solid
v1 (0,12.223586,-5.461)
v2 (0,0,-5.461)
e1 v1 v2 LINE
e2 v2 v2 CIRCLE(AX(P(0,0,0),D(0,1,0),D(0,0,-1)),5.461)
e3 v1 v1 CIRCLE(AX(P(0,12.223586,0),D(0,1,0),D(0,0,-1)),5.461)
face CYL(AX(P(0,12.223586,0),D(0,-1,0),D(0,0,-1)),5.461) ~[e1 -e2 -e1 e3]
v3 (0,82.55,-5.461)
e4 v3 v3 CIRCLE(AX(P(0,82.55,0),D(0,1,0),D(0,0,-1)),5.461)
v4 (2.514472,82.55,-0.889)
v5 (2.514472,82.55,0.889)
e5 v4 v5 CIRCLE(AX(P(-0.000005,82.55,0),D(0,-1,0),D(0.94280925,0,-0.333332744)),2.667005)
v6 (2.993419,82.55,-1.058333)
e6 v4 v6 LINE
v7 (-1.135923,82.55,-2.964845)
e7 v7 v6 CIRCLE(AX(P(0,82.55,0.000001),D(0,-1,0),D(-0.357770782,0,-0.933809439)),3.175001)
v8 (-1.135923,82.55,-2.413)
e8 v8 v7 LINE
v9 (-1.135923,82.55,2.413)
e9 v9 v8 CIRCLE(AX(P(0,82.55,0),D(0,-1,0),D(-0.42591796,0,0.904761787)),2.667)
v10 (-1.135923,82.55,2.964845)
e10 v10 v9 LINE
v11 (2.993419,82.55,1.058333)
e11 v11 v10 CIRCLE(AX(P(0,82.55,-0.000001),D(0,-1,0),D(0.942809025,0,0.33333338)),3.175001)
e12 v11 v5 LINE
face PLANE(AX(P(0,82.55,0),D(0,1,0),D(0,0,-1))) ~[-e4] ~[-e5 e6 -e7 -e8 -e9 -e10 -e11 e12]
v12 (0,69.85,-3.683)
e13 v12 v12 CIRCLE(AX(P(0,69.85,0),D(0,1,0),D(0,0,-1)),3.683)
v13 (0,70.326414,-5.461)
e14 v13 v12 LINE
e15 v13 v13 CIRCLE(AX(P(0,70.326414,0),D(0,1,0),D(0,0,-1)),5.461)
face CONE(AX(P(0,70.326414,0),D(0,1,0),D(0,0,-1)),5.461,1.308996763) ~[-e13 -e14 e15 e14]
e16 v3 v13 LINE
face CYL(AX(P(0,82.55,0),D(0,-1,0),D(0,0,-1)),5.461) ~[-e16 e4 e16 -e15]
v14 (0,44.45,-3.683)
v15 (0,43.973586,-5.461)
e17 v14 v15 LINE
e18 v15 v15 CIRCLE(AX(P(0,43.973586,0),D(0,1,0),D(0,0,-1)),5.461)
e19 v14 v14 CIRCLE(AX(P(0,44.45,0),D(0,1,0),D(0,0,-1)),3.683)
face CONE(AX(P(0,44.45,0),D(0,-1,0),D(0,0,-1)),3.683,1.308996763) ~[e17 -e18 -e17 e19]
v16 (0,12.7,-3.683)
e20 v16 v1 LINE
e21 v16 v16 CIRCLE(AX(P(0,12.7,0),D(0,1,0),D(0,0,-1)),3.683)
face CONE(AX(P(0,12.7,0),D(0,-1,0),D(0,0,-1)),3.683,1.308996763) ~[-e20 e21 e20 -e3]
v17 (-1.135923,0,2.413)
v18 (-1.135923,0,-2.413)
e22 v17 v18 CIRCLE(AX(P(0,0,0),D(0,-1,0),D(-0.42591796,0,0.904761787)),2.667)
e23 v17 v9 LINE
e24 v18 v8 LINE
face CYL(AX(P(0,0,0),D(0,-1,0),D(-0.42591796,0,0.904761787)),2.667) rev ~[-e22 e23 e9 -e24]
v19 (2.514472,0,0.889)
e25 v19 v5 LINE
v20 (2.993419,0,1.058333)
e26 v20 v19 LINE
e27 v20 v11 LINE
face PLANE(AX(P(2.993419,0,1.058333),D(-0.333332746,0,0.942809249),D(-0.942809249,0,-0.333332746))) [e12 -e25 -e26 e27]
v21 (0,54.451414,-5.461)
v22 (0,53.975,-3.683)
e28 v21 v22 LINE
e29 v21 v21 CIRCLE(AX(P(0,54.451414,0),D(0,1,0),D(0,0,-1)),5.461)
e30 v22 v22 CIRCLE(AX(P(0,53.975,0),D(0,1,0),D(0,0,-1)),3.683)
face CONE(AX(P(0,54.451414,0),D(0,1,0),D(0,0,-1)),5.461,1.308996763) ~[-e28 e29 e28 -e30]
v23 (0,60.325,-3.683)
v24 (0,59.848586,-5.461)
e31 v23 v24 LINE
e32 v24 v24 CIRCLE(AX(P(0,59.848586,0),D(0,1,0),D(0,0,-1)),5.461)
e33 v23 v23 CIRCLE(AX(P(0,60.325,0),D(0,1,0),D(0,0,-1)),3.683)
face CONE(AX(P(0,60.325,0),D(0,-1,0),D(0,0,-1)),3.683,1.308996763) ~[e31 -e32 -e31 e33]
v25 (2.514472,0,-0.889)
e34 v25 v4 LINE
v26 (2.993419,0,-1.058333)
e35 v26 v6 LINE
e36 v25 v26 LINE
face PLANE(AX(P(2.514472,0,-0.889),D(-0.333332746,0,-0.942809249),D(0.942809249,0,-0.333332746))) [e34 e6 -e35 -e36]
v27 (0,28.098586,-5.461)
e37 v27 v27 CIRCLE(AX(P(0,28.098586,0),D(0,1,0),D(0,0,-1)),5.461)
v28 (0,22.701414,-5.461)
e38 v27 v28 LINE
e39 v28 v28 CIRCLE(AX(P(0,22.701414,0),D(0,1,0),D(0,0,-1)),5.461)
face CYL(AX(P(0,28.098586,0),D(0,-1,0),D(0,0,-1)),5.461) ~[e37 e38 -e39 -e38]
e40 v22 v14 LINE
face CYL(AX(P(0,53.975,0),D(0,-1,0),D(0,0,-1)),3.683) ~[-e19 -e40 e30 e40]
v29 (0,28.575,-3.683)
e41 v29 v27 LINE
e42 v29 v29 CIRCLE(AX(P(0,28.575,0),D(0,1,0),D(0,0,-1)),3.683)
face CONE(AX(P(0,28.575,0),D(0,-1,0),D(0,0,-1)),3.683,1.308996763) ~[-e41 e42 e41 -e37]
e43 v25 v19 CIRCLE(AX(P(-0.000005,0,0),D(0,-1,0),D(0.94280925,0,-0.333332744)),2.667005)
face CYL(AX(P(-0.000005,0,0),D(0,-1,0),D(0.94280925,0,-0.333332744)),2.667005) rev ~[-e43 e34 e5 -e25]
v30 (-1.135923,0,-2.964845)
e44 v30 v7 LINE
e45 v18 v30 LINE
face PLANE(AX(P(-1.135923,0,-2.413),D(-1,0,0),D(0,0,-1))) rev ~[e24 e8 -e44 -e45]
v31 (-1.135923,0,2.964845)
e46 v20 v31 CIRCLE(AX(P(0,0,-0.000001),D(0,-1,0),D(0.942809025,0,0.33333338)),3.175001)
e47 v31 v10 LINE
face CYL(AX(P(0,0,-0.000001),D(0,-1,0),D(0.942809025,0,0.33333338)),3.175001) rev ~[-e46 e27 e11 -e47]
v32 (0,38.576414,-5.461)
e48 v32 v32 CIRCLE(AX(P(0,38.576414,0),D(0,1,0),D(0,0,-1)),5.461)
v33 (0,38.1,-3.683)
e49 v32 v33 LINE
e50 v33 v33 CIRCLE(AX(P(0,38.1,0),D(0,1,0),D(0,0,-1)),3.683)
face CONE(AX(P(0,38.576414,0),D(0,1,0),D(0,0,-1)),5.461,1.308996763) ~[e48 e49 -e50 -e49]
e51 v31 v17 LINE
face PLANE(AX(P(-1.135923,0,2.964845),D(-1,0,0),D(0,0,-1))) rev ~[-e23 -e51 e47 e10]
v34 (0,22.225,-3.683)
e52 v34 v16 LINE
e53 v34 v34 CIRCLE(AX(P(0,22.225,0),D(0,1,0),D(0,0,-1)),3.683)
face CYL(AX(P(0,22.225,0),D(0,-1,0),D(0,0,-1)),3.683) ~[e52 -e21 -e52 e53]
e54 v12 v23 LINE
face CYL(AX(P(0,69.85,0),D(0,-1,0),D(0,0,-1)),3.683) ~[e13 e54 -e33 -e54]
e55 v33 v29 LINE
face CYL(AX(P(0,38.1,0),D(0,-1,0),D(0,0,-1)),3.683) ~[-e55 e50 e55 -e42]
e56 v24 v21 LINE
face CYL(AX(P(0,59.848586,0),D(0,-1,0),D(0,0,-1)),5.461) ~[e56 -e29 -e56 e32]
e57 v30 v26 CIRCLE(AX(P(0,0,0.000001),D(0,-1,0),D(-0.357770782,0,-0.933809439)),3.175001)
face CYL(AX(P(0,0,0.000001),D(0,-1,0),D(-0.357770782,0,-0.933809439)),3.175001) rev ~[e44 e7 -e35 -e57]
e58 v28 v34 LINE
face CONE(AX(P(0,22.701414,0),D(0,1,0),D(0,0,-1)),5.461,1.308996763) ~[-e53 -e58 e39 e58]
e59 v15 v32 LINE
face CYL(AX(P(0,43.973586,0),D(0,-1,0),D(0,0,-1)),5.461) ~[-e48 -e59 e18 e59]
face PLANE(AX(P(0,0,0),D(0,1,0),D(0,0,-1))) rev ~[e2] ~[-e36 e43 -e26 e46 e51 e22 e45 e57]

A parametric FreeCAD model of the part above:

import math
import FreeCAD as App
import Part
import Sketcher

V = App.Vector
Q = App.Units.Quantity

doc = App.newDocument("Part")
body = doc.addObject("PartDesign::Body", "Body")

# Sketch on YZ plane
sketch1 = body.newObject("Sketcher::SketchObject", "Sketch")
sketch1.AttachmentSupport = (doc.getObject("YZ_Plane"), [""])
sketch1.MapMode = "FlatFace"
sketch1.addGeometry(Part.LineSegment(V(82.5, 0, 0), V(0, 0, 0)), False)
sketch1.addGeometry(Part.LineSegment(V(0, 0, 0), V(0, -5.5, 0)), False)
sketch1.addGeometry(Part.LineSegment(V(0, -5.5, 0), V(12.2, -5.5, 0)), False)
sketch1.addGeometry(Part.LineSegment(V(12.2, -5.5, 0), V(12.7, -3.7, 0)), False)
sketch1.addGeometry(Part.LineSegment(V(12.7, -3.7, 0), V(22.2, -3.7, 0)), False)
sketch1.addGeometry(Part.LineSegment(V(22.2, -3.7, 0), V(22.7, -5.5, 0)), False)
sketch1.addGeometry(Part.LineSegment(V(22.7, -5.5, 0), V(28.1, -5.5, 0)), False)
sketch1.addGeometry(Part.LineSegment(V(28.1, -5.5, 0), V(28.6, -3.7, 0)), False)
sketch1.addGeometry(Part.LineSegment(V(28.6, -3.7, 0), V(38.1, -3.7, 0)), False)
sketch1.addGeometry(Part.LineSegment(V(38.1, -3.7, 0), V(38.6, -5.5, 0)), False)
sketch1.addGeometry(Part.LineSegment(V(38.6, -5.5, 0), V(44, -5.5, 0)), False)
sketch1.addGeometry(Part.LineSegment(V(44, -5.5, 0), V(44.5, -3.7, 0)), False)
sketch1.addGeometry(Part.LineSegment(V(44.5, -3.7, 0), V(54, -3.7, 0)), False)
sketch1.addGeometry(Part.LineSegment(V(54, -3.7, 0), V(54.5, -5.5, 0)), False)
sketch1.addGeometry(Part.LineSegment(V(54.5, -5.5, 0), V(59.8, -5.5, 0)), False)
sketch1.addGeometry(Part.LineSegment(V(59.8, -5.5, 0), V(60.3, -3.7, 0)), False)
sketch1.addGeometry(Part.LineSegment(V(60.3, -3.7, 0), V(69.8, -3.7, 0)), False)
sketch1.addGeometry(Part.LineSegment(V(69.8, -3.7, 0), V(70.3, -5.5, 0)), False)
sketch1.addGeometry(Part.LineSegment(V(70.3, -5.5, 0), V(82.5, -5.5, 0)), False)
sketch1.addGeometry(Part.LineSegment(V(82.5, -5.5, 0), V(82.5, 0, 0)), False)
sketch1.addConstraint(Sketcher.Constraint("Coincident", 0, 2, 1, 1))
sketch1.addConstraint(Sketcher.Constraint("Coincident", 1, 2, 2, 1))
sketch1.addConstraint(Sketcher.Constraint("Coincident", 2, 2, 3, 1))
sketch1.addConstraint(Sketcher.Constraint("Coincident", 3, 2, 4, 1))
sketch1.addConstraint(Sketcher.Constraint("Coincident", 4, 2, 5, 1))
sketch1.addConstraint(Sketcher.Constraint("Coincident", 5, 2, 6, 1))
sketch1.addConstraint(Sketcher.Constraint("Coincident", 6, 2, 7, 1))
sketch1.addConstraint(Sketcher.Constraint("Coincident", 7, 2, 8, 1))
sketch1.addConstraint(Sketcher.Constraint("Coincident", 8, 2, 9, 1))
sketch1.addConstraint(Sketcher.Constraint("Coincident", 9, 2, 10, 1))
sketch1.addConstraint(Sketcher.Constraint("Coincident", 10, 2, 11, 1))
sketch1.addConstraint(Sketcher.Constraint("Coincident", 11, 2, 12, 1))
sketch1.addConstraint(Sketcher.Constraint("Coincident", 12, 2, 13, 1))
sketch1.addConstraint(Sketcher.Constraint("Coincident", 13, 2, 14, 1))
sketch1.addConstraint(Sketcher.Constraint("Coincident", 14, 2, 15, 1))
sketch1.addConstraint(Sketcher.Constraint("Coincident", 15, 2, 16, 1))
sketch1.addConstraint(Sketcher.Constraint("Coincident", 16, 2, 17, 1))
sketch1.addConstraint(Sketcher.Constraint("Coincident", 17, 2, 18, 1))
sketch1.addConstraint(Sketcher.Constraint("Coincident", 18, 2, 19, 1))
sketch1.addConstraint(Sketcher.Constraint("Coincident", 19, 2, 0, 1))
sketch1.addConstraint(Sketcher.Constraint("Horizontal", 0))
sketch1.addConstraint(Sketcher.Constraint("Vertical", 1))
sketch1.addConstraint(Sketcher.Constraint("Horizontal", 2))
sketch1.addConstraint(Sketcher.Constraint("Horizontal", 4))
sketch1.addConstraint(Sketcher.Constraint("Horizontal", 6))
sketch1.addConstraint(Sketcher.Constraint("Horizontal", 8))
sketch1.addConstraint(Sketcher.Constraint("Horizontal", 10))
sketch1.addConstraint(Sketcher.Constraint("Horizontal", 12))
sketch1.addConstraint(Sketcher.Constraint("Horizontal", 14))
sketch1.addConstraint(Sketcher.Constraint("Horizontal", 16))
sketch1.addConstraint(Sketcher.Constraint("Horizontal", 18))
sketch1.addConstraint(Sketcher.Constraint("Vertical", 19))
sketch1.addConstraint(Sketcher.Constraint("Coincident", 0, 2, -1, 1))
sketch1.addConstraint(Sketcher.Constraint("Parallel", 3, 7))
sketch1.addConstraint(Sketcher.Constraint("Parallel", 5, 9))
sketch1.addConstraint(Sketcher.Constraint("Parallel", 7, 11))
sketch1.addConstraint(Sketcher.Constraint("Parallel", 9, 13))
sketch1.addConstraint(Sketcher.Constraint("Parallel", 11, 15))
sketch1.addConstraint(Sketcher.Constraint("Parallel", 13, 17))
sketch1.addConstraint(Sketcher.Constraint("Horizontal", 2, 2, 5, 2))
sketch1.addConstraint(Sketcher.Constraint("Horizontal", 4, 2, 7, 2))
sketch1.addConstraint(Sketcher.Constraint("Horizontal", 6, 2, 9, 2))
sketch1.addConstraint(Sketcher.Constraint("Horizontal", 8, 2, 11, 2))
sketch1.addConstraint(Sketcher.Constraint("Horizontal", 10, 2, 13, 2))
sketch1.addConstraint(Sketcher.Constraint("Horizontal", 12, 2, 15, 2))
sketch1.addConstraint(Sketcher.Constraint("Horizontal", 14, 2, 17, 2))
sketch1.addConstraint(Sketcher.Constraint("Equal", 4, 8))
sketch1.addConstraint(Sketcher.Constraint("Equal", 6, 10))
sketch1.addConstraint(Sketcher.Constraint("Equal", 8, 12))
sketch1.addConstraint(Sketcher.Constraint("Equal", 10, 14))
sketch1.addConstraint(Sketcher.Constraint("Equal", 12, 16))
sketch1.addConstraint(Sketcher.Constraint("Equal", 2, 18))
sketch1.addConstraint(Sketcher.Constraint("Equal", 3, 5))
sketch1.addConstraint(Sketcher.Constraint("Angle", 3, Q("74.99999 deg")))
sketch1.addConstraint(Sketcher.Constraint("DistanceX", 3, 2, 8, 2, Q("1 in")))
sketch1.addConstraint(Sketcher.Constraint("DistanceX", 0, 2, 0, 1, Q("3.25 in")))
sketch1.addConstraint(Sketcher.Constraint("DistanceX", -1, 1, 3, 2, Q("0.5 in")))
sketch1.addConstraint(Sketcher.Constraint("DistanceY", 1, 2, 1, 1, Q("0.215 in")))
sketch1.addConstraint(Sketcher.Constraint("DistanceY", 2, 2, 3, 2, Q("0.07 in")))
revolution = body.newObject("PartDesign::Revolution", "Revolution")
revolution.Profile = sketch1
revolution.ReferenceAxis = (sketch1, ["H_Axis"])
revolution.Angle = 360

# Sketch on XZ plane
sketch2 = body.newObject("Sketcher::SketchObject", "Sketch001")
sketch2.AttachmentSupport = (doc.getObject("XZ_Plane"), [""])
sketch2.MapMode = "FlatFace"
sketch2.addGeometry(Part.ArcOfCircle(Part.Circle(V(0, 0, 0), V(0, 0, 1), 2.7), math.radians(115), math.radians(245)), False)
sketch2.addGeometry(Part.LineSegment(V(-1.1, -2.4, 0), V(-1.1, -3, 0)), False)
sketch2.addGeometry(Part.ArcOfCircle(Part.Circle(V(0, 0, 0), V(0, 0, 1), 3.2), math.radians(-111), math.radians(-19)), False)
sketch2.addGeometry(Part.LineSegment(V(3, -1.1, 0), V(2.5, -0.9, 0)), False)
sketch2.addGeometry(Part.ArcOfCircle(Part.Circle(V(0, 0, 0), V(0, 0, 1), 2.7), math.radians(-19), math.radians(19)), False)
sketch2.addGeometry(Part.LineSegment(V(2.5, 0.9, 0), V(3, 1.1, 0)), False)
sketch2.addGeometry(Part.ArcOfCircle(Part.Circle(V(0, 0, 0), V(0, 0, 1), 3.2), math.radians(19), math.radians(111)), False)
sketch2.addGeometry(Part.LineSegment(V(-1.1, 3, 0), V(-1.1, 2.4, 0)), False)
sketch2.addConstraint(Sketcher.Constraint("Coincident", 0, 2, 1, 1))
sketch2.addConstraint(Sketcher.Constraint("Coincident", 1, 2, 2, 1))
sketch2.addConstraint(Sketcher.Constraint("Coincident", 2, 2, 3, 1))
sketch2.addConstraint(Sketcher.Constraint("Coincident", 3, 2, 4, 1))
sketch2.addConstraint(Sketcher.Constraint("Coincident", 4, 2, 5, 1))
sketch2.addConstraint(Sketcher.Constraint("Coincident", 5, 2, 6, 1))
sketch2.addConstraint(Sketcher.Constraint("Coincident", 6, 2, 7, 1))
sketch2.addConstraint(Sketcher.Constraint("Coincident", 7, 2, 0, 1))
sketch2.addConstraint(Sketcher.Constraint("Vertical", 1))
sketch2.addConstraint(Sketcher.Constraint("Vertical", 7))
sketch2.addConstraint(Sketcher.Constraint("Coincident", 0, 3, -1, 1))
sketch2.addConstraint(Sketcher.Constraint("Coincident", 2, 3, -1, 1))
sketch2.addConstraint(Sketcher.Constraint("Coincident", 4, 3, -1, 1))
sketch2.addConstraint(Sketcher.Constraint("Coincident", 6, 3, -1, 1))
sketch2.addConstraint(Sketcher.Constraint("Equal", 2, 6))
sketch2.addConstraint(Sketcher.Constraint("Vertical", 3, 2, 4, 2))
sketch2.addConstraint(Sketcher.Constraint("Vertical", 2, 2, 5, 2))
sketch2.addConstraint(Sketcher.Constraint("Vertical", 1, 2, 6, 2))
sketch2.addConstraint(Sketcher.Constraint("Radius", 0, Q("0.105 in")))
sketch2.addConstraint(Sketcher.Constraint("Radius", 2, Q("0.125 in")))
sketch2.addConstraint(Sketcher.Constraint("Radius", 4, Q("0.1050002 in")))
sketch2.addConstraint(Sketcher.Constraint("DistanceY", 3, 2, 4, 2, Q("0.07 in")))
sketch2.addConstraint(Sketcher.Constraint("DistanceY", 0, 2, -1, 1, Q("0.095 in")))
sketch2.addConstraint(Sketcher.Constraint("DistanceX", -1, 1, 2, 2, Q("2.993419 mm")))
pocket1 = body.newObject("PartDesign::Pocket", "Pocket")
pocket1.Profile = sketch2
pocket1.Type = "ThroughAll"

doc.recompute()
